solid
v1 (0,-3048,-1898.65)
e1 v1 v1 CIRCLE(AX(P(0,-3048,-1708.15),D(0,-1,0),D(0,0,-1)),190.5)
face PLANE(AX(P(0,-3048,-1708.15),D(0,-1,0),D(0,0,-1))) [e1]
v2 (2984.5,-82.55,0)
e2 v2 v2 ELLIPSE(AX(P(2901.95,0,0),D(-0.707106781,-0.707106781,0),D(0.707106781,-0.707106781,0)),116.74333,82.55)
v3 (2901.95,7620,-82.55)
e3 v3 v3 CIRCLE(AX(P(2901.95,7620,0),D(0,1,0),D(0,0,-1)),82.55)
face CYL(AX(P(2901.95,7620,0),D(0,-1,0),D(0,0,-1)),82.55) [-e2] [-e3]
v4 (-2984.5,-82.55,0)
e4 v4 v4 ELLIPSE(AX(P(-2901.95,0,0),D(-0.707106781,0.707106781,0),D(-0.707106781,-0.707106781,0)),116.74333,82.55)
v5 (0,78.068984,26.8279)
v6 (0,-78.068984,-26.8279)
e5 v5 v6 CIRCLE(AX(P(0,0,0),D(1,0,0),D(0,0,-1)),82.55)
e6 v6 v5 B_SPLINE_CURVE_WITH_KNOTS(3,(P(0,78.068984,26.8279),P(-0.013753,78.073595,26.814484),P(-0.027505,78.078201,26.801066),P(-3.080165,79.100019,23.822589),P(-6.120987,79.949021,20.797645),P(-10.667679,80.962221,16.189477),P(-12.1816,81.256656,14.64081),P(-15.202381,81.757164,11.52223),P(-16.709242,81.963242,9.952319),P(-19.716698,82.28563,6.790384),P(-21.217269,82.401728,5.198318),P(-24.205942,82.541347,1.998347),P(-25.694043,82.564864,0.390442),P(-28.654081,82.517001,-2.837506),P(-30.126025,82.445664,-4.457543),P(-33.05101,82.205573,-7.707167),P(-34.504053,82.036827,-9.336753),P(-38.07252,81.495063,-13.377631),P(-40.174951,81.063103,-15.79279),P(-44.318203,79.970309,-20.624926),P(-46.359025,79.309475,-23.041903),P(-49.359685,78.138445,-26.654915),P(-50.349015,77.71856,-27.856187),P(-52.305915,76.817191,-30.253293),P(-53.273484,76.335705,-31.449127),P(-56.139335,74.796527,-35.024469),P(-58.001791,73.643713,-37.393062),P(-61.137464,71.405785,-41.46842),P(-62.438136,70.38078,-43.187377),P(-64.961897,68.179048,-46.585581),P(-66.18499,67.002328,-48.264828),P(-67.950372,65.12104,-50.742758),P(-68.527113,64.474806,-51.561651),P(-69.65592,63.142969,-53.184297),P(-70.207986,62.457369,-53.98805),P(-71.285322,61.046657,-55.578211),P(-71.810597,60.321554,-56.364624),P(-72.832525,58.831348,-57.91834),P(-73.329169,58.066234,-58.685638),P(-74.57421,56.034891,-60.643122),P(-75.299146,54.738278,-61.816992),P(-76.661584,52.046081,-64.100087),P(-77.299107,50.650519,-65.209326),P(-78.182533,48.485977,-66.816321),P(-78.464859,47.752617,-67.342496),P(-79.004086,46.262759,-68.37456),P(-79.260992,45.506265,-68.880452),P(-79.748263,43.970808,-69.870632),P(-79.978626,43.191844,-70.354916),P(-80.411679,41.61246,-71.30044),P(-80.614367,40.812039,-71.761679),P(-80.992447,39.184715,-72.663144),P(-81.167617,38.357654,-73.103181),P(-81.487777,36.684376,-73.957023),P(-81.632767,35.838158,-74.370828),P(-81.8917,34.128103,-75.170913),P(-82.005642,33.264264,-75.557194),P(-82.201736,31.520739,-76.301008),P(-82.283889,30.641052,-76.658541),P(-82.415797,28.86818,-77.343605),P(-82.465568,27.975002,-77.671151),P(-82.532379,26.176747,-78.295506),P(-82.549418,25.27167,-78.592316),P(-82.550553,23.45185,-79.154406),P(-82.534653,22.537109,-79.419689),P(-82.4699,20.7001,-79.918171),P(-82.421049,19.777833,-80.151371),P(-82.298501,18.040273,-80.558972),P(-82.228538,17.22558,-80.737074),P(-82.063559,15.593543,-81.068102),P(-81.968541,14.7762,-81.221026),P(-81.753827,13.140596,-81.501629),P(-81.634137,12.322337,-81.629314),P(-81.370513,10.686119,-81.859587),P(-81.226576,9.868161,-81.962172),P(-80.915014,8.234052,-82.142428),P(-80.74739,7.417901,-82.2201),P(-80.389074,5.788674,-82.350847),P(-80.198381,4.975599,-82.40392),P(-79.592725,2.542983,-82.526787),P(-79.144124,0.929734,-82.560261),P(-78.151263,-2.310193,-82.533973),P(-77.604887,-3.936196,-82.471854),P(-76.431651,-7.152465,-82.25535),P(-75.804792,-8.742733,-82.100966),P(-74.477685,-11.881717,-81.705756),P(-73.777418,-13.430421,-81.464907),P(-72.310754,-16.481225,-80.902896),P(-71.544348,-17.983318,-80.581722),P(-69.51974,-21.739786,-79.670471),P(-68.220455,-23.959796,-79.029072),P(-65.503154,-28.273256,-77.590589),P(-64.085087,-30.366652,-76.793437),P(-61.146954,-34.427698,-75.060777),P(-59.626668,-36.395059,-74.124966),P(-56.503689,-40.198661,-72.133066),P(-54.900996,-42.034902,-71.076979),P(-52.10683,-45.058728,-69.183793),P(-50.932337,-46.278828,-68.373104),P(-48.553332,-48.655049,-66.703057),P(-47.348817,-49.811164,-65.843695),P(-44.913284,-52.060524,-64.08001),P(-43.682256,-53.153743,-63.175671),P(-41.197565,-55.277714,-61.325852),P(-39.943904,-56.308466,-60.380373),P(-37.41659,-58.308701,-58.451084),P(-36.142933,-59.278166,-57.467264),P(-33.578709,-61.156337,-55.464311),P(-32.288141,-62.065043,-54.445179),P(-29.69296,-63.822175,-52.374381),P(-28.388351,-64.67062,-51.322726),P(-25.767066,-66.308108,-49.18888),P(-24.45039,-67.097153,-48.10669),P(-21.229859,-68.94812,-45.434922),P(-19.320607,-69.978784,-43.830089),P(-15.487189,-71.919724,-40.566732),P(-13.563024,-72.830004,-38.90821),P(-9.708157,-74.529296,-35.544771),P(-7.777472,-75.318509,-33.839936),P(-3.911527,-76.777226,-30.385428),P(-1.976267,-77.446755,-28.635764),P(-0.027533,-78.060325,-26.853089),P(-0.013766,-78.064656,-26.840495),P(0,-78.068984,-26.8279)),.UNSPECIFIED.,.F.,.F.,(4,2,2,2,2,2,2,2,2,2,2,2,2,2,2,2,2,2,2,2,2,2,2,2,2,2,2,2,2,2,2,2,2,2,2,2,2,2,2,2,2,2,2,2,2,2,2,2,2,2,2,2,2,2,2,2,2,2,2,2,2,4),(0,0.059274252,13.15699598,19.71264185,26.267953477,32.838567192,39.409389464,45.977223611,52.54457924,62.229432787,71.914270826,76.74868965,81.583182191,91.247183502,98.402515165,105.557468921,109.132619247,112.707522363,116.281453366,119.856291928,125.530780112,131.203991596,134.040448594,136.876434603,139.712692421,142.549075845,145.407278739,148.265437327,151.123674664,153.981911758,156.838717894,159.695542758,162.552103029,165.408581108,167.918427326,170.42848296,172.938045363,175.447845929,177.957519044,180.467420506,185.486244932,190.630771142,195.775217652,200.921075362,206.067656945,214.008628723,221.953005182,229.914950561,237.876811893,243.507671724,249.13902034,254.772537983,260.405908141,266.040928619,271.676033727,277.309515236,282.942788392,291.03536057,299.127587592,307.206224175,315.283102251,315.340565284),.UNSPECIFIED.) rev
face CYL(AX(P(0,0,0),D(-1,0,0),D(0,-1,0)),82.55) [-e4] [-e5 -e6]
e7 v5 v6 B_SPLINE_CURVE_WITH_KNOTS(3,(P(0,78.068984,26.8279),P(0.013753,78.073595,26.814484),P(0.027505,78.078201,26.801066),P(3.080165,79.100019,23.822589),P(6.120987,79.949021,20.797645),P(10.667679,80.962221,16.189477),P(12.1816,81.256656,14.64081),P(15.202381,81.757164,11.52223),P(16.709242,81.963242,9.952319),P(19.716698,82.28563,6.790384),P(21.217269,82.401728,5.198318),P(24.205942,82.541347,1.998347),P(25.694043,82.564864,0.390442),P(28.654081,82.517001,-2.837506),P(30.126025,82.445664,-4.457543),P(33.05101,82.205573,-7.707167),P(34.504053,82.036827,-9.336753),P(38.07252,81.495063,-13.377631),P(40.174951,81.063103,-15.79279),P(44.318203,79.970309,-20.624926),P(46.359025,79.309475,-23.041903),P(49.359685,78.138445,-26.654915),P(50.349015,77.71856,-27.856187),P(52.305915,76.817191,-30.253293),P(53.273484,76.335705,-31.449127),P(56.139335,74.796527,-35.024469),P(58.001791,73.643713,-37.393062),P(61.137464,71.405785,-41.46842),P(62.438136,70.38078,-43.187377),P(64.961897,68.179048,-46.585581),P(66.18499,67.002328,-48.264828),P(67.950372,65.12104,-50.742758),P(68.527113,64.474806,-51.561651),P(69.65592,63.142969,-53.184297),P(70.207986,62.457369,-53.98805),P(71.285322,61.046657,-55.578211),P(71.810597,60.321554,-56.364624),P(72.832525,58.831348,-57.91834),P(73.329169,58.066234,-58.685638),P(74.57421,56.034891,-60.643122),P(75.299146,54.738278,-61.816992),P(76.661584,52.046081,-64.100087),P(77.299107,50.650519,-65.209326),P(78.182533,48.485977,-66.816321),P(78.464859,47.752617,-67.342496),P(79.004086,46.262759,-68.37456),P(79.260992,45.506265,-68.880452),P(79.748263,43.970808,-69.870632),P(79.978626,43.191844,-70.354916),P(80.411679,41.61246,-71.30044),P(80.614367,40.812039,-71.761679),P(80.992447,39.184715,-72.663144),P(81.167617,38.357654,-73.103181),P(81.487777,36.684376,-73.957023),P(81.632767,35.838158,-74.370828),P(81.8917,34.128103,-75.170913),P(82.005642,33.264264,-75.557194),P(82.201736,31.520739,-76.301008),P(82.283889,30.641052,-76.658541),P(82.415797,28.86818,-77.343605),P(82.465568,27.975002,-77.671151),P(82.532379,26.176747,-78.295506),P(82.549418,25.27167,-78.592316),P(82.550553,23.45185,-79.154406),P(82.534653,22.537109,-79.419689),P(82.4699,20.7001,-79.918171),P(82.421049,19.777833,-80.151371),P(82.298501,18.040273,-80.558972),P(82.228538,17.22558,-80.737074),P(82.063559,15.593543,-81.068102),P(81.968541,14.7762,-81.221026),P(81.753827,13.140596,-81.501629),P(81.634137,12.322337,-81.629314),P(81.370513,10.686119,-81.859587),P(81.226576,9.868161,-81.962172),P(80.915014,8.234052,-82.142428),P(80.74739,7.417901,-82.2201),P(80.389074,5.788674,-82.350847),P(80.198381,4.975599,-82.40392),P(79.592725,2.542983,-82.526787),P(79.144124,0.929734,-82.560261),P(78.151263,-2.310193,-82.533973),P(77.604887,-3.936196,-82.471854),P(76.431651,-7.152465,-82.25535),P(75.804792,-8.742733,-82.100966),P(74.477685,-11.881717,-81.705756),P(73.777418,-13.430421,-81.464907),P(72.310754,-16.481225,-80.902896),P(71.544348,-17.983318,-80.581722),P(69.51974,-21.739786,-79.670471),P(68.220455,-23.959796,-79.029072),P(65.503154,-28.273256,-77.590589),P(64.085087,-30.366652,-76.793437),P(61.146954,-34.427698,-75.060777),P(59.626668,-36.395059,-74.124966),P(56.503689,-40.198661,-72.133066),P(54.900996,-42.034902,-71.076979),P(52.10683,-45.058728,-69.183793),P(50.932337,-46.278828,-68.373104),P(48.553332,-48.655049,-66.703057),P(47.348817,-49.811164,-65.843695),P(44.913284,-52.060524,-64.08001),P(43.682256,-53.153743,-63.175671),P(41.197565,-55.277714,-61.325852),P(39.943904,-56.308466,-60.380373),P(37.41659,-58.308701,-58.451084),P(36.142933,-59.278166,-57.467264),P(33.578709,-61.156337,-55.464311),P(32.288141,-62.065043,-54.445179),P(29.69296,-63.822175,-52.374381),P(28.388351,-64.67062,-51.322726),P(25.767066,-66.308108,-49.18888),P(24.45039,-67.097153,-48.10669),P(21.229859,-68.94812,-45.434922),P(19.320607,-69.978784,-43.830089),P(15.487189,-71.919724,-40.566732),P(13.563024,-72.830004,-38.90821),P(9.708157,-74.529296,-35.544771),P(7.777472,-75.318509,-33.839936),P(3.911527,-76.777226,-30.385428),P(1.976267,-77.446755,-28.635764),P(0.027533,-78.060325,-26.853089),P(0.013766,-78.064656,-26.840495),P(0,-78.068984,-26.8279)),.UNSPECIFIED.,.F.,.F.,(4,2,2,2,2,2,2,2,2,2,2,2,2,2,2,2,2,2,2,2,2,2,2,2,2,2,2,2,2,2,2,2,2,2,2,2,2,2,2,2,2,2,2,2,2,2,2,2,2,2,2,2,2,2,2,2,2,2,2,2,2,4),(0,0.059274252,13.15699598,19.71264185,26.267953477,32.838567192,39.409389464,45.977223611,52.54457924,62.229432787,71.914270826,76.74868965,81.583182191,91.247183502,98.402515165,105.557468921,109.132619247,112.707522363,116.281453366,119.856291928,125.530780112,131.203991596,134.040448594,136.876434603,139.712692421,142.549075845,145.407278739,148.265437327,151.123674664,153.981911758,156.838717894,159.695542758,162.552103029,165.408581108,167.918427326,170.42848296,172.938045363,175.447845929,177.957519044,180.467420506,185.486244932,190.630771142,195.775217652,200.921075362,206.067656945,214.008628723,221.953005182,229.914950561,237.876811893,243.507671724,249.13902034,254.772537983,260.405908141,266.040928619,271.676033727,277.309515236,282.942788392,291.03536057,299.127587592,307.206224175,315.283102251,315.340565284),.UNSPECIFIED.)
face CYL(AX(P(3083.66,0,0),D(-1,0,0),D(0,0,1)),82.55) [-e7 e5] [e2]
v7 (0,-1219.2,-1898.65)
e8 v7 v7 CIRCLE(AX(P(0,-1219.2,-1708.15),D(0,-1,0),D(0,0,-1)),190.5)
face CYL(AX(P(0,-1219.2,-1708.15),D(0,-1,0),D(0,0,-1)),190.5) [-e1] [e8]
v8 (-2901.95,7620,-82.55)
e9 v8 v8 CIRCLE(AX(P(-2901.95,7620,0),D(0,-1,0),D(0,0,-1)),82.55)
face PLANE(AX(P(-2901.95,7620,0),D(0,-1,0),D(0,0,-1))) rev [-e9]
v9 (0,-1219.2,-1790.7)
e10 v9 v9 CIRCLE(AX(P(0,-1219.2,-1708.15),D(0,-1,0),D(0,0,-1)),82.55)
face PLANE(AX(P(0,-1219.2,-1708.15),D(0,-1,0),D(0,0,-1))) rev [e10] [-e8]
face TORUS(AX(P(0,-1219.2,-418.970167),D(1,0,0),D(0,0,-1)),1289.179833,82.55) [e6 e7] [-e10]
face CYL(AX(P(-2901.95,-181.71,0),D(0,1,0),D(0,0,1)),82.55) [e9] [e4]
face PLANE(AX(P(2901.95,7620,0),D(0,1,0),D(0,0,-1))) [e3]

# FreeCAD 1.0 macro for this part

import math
import FreeCAD as App
import Part
import Sketcher

V = App.Vector
Q = App.Units.Quantity

doc = App.newDocument("Part")
body = doc.addObject("PartDesign::Body", "Body")

# Sketch on XZ plane
sketch1 = doc.addObject("Sketcher::SketchObject", "Sketch")
body.addObject(sketch1)
sketch1.AttachmentSupport = (doc.XZ_Plane, [""])
sketch1.MapMode = "FlatFace"
sketch1.AttachmentOffset = App.Placement(V(0, 0, -300 * 25.4), App.Rotation())
sketch1.addGeometry(Part.Circle(V(2902, 0, 0), V(0, 0, 1), 83), False)
sketch1.addConstraint([
    Sketcher.Constraint("PointOnObject", 0, 3, -1),
    Sketcher.Constraint("Diameter", 0, Q("6.5 in")),
    Sketcher.Constraint("DistanceX", -1, 1, 0, 3, Q("114.25 in")),
])

# Sketch on XY plane
sketch2 = doc.addObject("Sketcher::SketchObject", "Sketch001")
body.addObject(sketch2)
sketch2.AttachmentSupport = (doc.XY_Plane, [""])
sketch2.MapMode = "FlatFace"
sketch2.addGeometry([
    Part.LineSegment(V(2902, 7620, 0), V(2902, 0, 0)),
    Part.LineSegment(V(2902, 0, 0), V(-2902, 0, 0)),
    Part.LineSegment(V(-2902, 0, 0), V(-2902, 7620, 0)),
], False)
sketch2.addConstraint([
    Sketcher.Constraint("Coincident", 0, 2, 1, 1),
    Sketcher.Constraint("Coincident", 1, 2, 2, 1),
    Sketcher.Constraint("Vertical", 0),
    Sketcher.Constraint("Horizontal", 1),
    Sketcher.Constraint("Vertical", 2),
    Sketcher.Constraint("Symmetric", 0, 2, 1, 2, -1, 1),
    Sketcher.Constraint("Horizontal", 0, 1, 2, 2),
    Sketcher.Constraint("DistanceY", 0, 2, 0, 1, Q("300 in")),
    Sketcher.Constraint("DistanceX", 1, 2, 1, 1, Q("228.5 in")),
])
doc.recompute()

additivepipe = doc.addObject("PartDesign::AdditivePipe", "AdditivePipe")
body.addObject(additivepipe)
additivepipe.Profile = sketch1
additivepipe.Spine = (sketch2, ["Edge1", "Edge2", "Edge3"])
additivepipe.Transition = "Right corner"

# Sketch on XZ plane
sketch3 = doc.addObject("Sketcher::SketchObject", "Sketch002")
body.addObject(sketch3)
sketch3.AttachmentSupport = (doc.XZ_Plane, [""])
sketch3.MapMode = "FlatFace"
sketch3.AttachmentOffset = App.Placement(V(0, 0, 120 * 25.4), App.Rotation())
sketch3.addGeometry(Part.Circle(V(0, -1708, 0), V(0, 0, 1), 83), False)
sketch3.addConstraint([
    Sketcher.Constraint("PointOnObject", 0, 3, -2),
    Sketcher.Constraint("Diameter", 0, Q("6.5 in")),
    Sketcher.Constraint("DistanceY", 0, 3, -1, 1, Q("67.25 in")),
])

# Sketch on YZ plane
sketch4 = doc.addObject("Sketcher::SketchObject", "Sketch003")
body.addObject(sketch4)
sketch4.AttachmentSupport = (doc.YZ_Plane, [""])
sketch4.MapMode = "FlatFace"
sketch4.addGeometry([
    Part.LineSegment(V(-3048, -1708, 0), V(-1219, -1708, 0)),
    Part.ArcOfCircle(Part.Circle(V(-1219, -419, 0), V(0, 0, 1), 1289), math.radians(-90), math.radians(19)),
], False)
sketch4.addConstraint([
    Sketcher.Constraint("Coincident", 0, 2, 1, 1),
    Sketcher.Constraint("Horizontal", 0),
    Sketcher.Constraint("Coincident", 1, 2, -1, 1),
    Sketcher.Constraint("Vertical", 1, 3, 0, 2),
    Sketcher.Constraint("DistanceX", 0, 1, 0, 2, Q("72 in")),
    Sketcher.Constraint("DistanceX", 1, 3, -1, 1, Q("48 in")),
    Sketcher.Constraint("DistanceY", 0, 1, -1, 1, Q("67.25 in")),
])
doc.recompute()

additivepipe2 = doc.addObject("PartDesign::AdditivePipe", "AdditivePipe001")
body.addObject(additivepipe2)
additivepipe2.Profile = sketch3
additivepipe2.Spine = (sketch4, ["Edge1", "Edge2"])

# Sketch on XZ plane
sketch5 = doc.addObject("Sketcher::SketchObject", "Sketch004")
body.addObject(sketch5)
sketch5.AttachmentSupport = (doc.XZ_Plane, [""])
sketch5.MapMode = "FlatFace"
sketch5.AttachmentOffset = App.Placement(V(0, 0, 120 * 25.4), App.Rotation())
sketch5.addGeometry(Part.Circle(V(0, -1708, 0), V(0, 0, 1), 190), False)
sketch5.addConstraint([
    Sketcher.Constraint("PointOnObject", 0, 3, -2),
    Sketcher.Constraint("Diameter", 0, Q("15 in")),
    Sketcher.Constraint("DistanceY", 0, 3, -1, 1, Q("67.25 in")),
])
pad1 = doc.addObject("PartDesign::Pad", "Pad")
body.addObject(pad1)
pad1.Profile = sketch5
pad1.Length = Q("72 in")
pad1.Reversed = True

doc.recompute()
